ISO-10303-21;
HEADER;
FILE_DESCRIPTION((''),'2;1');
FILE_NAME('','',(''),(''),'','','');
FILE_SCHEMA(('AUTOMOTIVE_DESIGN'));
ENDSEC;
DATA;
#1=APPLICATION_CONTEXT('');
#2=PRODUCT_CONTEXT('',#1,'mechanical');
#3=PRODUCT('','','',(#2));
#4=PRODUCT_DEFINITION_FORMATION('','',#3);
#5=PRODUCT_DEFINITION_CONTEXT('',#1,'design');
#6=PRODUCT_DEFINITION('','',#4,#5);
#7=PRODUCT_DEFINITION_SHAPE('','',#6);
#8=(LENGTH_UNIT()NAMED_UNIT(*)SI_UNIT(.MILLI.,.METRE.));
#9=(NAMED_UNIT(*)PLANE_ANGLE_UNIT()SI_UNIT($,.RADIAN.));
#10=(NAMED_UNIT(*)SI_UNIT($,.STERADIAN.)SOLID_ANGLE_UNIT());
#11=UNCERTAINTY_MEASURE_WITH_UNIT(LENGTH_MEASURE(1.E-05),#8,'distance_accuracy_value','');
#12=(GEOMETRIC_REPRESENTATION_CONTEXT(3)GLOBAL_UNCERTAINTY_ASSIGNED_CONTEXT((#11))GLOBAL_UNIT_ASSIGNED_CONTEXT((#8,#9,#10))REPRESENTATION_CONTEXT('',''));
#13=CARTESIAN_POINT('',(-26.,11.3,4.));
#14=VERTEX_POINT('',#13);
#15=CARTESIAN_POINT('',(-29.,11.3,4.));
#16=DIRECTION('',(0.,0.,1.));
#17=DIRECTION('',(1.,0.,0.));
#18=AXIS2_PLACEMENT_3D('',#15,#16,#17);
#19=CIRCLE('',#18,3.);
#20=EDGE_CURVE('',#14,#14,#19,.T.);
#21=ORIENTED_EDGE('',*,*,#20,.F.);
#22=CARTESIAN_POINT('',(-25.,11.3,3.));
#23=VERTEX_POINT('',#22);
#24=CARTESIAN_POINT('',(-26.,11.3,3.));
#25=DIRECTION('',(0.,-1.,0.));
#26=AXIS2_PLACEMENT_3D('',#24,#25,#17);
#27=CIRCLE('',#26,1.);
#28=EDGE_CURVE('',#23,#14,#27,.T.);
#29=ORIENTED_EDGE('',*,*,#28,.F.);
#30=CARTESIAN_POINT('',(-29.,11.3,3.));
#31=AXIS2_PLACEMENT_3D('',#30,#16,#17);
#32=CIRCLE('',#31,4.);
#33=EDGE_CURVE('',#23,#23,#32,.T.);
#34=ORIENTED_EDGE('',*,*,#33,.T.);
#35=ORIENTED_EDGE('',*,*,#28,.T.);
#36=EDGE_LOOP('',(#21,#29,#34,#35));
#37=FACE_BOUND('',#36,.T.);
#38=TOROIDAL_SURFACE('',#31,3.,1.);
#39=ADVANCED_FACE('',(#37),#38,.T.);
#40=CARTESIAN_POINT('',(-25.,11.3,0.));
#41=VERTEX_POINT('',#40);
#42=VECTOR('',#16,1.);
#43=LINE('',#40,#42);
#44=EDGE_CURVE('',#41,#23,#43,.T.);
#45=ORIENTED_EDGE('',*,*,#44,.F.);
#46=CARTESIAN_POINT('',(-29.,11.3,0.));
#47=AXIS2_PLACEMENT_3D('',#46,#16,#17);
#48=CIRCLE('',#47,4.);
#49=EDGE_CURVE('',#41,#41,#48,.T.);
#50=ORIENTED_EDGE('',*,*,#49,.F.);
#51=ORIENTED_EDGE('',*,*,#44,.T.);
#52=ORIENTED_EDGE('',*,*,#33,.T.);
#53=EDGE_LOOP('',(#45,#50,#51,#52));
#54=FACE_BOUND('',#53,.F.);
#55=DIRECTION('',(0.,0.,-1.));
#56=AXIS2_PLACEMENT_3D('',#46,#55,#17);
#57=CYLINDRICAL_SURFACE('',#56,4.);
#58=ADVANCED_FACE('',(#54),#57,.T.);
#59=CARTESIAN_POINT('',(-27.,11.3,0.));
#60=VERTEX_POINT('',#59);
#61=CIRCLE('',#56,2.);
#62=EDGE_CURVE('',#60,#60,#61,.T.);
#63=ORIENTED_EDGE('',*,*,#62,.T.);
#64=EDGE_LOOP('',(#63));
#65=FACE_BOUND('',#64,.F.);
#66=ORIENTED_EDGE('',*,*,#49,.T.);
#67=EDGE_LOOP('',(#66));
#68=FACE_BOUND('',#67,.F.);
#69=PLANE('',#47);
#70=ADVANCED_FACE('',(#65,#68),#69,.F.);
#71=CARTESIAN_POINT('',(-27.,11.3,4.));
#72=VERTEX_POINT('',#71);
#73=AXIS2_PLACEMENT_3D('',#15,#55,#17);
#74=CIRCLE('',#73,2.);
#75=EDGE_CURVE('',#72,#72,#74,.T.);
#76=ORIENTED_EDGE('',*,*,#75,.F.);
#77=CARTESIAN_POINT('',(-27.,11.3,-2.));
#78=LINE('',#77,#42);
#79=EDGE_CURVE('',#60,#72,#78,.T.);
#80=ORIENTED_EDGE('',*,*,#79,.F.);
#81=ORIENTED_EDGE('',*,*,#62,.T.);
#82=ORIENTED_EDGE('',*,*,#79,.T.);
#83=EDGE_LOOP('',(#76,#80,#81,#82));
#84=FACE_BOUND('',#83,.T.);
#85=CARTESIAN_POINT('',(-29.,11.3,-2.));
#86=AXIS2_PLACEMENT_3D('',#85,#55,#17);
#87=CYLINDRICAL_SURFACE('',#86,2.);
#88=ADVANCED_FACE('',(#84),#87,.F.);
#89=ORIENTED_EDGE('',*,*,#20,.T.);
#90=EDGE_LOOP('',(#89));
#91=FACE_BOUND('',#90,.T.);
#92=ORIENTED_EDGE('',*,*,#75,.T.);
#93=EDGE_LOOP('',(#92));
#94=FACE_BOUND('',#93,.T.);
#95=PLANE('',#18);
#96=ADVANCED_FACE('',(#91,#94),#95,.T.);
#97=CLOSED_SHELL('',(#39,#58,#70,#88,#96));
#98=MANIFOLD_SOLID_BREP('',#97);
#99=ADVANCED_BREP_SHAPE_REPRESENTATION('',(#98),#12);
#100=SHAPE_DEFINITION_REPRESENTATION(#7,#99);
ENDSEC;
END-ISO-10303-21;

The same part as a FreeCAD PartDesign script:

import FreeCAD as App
import Part
import Sketcher

V = App.Vector
Q = App.Units.Quantity


def edges_at(feature, points):
    """Names of the edges that pass closest to the given points."""
    edges = feature.Shape.Edges
    near = lambda p: min(range(len(edges)), key=lambda i: edges[i].distToShape(Part.Vertex(*p))[0])
    return sorted({f"Edge{near(p) + 1}" for p in points})

doc = App.newDocument("Part")
body = doc.addObject("PartDesign::Body", "Body")

sketch1 = doc.addObject("Sketcher::SketchObject", "Sketch")
body.addObject(sketch1)
sketch1.AttachmentSupport = (doc.XY_Plane, [""])
sketch1.MapMode = "FlatFace"
sketch1.AttachmentOffset = App.Placement(V(0, 0, -2), App.Rotation())
sketch1.addGeometry(Part.Circle(V(-35, 16, 0), V(0, 0, 1), 2), False)
sketch1.addConstraint([
    Sketcher.Constraint("Diameter", 0, Q("4 mm")),
    Sketcher.Constraint("DistanceX", 0, 3, -1, 1, Q("35 mm")),
    Sketcher.Constraint("DistanceY", -1, 1, 0, 3, Q("16 mm")),
])
pad1 = doc.addObject("PartDesign::Pad", "Pad")
body.addObject(pad1)
pad1.Profile = sketch1
pad1.Length = 10
body2 = doc.addObject("PartDesign::Body", "Body001")

sketch2 = doc.addObject("Sketcher::SketchObject", "Sketch001")
body2.addObject(sketch2)
sketch2.AttachmentSupport = (doc.getObject("XY_Plane001"), [""])
sketch2.MapMode = "FlatFace"
sketch2.addGeometry(Part.Circle(V(-35, 16, 0), V(0, 0, 1), 4), False)
sketch2.addConstraint([
    Sketcher.Constraint("Diameter", 0, Q("8 mm")),
    Sketcher.Constraint("DistanceX", 0, 3, -1, 1, Q("35 mm")),
    Sketcher.Constraint("DistanceY", -1, 1, 0, 3, Q("16 mm")),
])
pad2 = doc.addObject("PartDesign::Pad", "Pad001")
body2.addObject(pad2)
pad2.Profile = sketch2
pad2.Length = 4
doc.recompute()

boolean = doc.addObject("PartDesign::Boolean", "Boolean")
body2.addObject(boolean)
boolean.Type = "Cut"
boolean.addObjects([body])
body3 = doc.addObject("PartDesign::Body", "Body002")
doc.recompute()

body2.Placement = App.Placement(V(0, 1.3, 0), App.Rotation(V(0, 0, 1), 0))
boolean2 = doc.addObject("PartDesign::Boolean", "Boolean001")
body3.addObject(boolean2)
boolean2.Type = "Fuse"
boolean2.addObjects([body2])
doc.recompute()

fillet = doc.addObject("PartDesign::Fillet", "Fillet")
body3.addObject(fillet)
fillet.Base = (boolean2, edges_at(boolean2, [(-39, 17.3, 4)]))
fillet.Radius = 1
body4 = doc.addObject("PartDesign::Body", "Body003")
doc.recompute()

body3.Placement = App.Placement(V(6, -6, 0), App.Rotation(V(0, 0, 1), 0))
boolean3 = doc.addObject("PartDesign::Boolean", "Boolean002")
body4.addObject(boolean3)
boolean3.Type = "Fuse"
boolean3.addObjects([body3])

doc.recompute()
